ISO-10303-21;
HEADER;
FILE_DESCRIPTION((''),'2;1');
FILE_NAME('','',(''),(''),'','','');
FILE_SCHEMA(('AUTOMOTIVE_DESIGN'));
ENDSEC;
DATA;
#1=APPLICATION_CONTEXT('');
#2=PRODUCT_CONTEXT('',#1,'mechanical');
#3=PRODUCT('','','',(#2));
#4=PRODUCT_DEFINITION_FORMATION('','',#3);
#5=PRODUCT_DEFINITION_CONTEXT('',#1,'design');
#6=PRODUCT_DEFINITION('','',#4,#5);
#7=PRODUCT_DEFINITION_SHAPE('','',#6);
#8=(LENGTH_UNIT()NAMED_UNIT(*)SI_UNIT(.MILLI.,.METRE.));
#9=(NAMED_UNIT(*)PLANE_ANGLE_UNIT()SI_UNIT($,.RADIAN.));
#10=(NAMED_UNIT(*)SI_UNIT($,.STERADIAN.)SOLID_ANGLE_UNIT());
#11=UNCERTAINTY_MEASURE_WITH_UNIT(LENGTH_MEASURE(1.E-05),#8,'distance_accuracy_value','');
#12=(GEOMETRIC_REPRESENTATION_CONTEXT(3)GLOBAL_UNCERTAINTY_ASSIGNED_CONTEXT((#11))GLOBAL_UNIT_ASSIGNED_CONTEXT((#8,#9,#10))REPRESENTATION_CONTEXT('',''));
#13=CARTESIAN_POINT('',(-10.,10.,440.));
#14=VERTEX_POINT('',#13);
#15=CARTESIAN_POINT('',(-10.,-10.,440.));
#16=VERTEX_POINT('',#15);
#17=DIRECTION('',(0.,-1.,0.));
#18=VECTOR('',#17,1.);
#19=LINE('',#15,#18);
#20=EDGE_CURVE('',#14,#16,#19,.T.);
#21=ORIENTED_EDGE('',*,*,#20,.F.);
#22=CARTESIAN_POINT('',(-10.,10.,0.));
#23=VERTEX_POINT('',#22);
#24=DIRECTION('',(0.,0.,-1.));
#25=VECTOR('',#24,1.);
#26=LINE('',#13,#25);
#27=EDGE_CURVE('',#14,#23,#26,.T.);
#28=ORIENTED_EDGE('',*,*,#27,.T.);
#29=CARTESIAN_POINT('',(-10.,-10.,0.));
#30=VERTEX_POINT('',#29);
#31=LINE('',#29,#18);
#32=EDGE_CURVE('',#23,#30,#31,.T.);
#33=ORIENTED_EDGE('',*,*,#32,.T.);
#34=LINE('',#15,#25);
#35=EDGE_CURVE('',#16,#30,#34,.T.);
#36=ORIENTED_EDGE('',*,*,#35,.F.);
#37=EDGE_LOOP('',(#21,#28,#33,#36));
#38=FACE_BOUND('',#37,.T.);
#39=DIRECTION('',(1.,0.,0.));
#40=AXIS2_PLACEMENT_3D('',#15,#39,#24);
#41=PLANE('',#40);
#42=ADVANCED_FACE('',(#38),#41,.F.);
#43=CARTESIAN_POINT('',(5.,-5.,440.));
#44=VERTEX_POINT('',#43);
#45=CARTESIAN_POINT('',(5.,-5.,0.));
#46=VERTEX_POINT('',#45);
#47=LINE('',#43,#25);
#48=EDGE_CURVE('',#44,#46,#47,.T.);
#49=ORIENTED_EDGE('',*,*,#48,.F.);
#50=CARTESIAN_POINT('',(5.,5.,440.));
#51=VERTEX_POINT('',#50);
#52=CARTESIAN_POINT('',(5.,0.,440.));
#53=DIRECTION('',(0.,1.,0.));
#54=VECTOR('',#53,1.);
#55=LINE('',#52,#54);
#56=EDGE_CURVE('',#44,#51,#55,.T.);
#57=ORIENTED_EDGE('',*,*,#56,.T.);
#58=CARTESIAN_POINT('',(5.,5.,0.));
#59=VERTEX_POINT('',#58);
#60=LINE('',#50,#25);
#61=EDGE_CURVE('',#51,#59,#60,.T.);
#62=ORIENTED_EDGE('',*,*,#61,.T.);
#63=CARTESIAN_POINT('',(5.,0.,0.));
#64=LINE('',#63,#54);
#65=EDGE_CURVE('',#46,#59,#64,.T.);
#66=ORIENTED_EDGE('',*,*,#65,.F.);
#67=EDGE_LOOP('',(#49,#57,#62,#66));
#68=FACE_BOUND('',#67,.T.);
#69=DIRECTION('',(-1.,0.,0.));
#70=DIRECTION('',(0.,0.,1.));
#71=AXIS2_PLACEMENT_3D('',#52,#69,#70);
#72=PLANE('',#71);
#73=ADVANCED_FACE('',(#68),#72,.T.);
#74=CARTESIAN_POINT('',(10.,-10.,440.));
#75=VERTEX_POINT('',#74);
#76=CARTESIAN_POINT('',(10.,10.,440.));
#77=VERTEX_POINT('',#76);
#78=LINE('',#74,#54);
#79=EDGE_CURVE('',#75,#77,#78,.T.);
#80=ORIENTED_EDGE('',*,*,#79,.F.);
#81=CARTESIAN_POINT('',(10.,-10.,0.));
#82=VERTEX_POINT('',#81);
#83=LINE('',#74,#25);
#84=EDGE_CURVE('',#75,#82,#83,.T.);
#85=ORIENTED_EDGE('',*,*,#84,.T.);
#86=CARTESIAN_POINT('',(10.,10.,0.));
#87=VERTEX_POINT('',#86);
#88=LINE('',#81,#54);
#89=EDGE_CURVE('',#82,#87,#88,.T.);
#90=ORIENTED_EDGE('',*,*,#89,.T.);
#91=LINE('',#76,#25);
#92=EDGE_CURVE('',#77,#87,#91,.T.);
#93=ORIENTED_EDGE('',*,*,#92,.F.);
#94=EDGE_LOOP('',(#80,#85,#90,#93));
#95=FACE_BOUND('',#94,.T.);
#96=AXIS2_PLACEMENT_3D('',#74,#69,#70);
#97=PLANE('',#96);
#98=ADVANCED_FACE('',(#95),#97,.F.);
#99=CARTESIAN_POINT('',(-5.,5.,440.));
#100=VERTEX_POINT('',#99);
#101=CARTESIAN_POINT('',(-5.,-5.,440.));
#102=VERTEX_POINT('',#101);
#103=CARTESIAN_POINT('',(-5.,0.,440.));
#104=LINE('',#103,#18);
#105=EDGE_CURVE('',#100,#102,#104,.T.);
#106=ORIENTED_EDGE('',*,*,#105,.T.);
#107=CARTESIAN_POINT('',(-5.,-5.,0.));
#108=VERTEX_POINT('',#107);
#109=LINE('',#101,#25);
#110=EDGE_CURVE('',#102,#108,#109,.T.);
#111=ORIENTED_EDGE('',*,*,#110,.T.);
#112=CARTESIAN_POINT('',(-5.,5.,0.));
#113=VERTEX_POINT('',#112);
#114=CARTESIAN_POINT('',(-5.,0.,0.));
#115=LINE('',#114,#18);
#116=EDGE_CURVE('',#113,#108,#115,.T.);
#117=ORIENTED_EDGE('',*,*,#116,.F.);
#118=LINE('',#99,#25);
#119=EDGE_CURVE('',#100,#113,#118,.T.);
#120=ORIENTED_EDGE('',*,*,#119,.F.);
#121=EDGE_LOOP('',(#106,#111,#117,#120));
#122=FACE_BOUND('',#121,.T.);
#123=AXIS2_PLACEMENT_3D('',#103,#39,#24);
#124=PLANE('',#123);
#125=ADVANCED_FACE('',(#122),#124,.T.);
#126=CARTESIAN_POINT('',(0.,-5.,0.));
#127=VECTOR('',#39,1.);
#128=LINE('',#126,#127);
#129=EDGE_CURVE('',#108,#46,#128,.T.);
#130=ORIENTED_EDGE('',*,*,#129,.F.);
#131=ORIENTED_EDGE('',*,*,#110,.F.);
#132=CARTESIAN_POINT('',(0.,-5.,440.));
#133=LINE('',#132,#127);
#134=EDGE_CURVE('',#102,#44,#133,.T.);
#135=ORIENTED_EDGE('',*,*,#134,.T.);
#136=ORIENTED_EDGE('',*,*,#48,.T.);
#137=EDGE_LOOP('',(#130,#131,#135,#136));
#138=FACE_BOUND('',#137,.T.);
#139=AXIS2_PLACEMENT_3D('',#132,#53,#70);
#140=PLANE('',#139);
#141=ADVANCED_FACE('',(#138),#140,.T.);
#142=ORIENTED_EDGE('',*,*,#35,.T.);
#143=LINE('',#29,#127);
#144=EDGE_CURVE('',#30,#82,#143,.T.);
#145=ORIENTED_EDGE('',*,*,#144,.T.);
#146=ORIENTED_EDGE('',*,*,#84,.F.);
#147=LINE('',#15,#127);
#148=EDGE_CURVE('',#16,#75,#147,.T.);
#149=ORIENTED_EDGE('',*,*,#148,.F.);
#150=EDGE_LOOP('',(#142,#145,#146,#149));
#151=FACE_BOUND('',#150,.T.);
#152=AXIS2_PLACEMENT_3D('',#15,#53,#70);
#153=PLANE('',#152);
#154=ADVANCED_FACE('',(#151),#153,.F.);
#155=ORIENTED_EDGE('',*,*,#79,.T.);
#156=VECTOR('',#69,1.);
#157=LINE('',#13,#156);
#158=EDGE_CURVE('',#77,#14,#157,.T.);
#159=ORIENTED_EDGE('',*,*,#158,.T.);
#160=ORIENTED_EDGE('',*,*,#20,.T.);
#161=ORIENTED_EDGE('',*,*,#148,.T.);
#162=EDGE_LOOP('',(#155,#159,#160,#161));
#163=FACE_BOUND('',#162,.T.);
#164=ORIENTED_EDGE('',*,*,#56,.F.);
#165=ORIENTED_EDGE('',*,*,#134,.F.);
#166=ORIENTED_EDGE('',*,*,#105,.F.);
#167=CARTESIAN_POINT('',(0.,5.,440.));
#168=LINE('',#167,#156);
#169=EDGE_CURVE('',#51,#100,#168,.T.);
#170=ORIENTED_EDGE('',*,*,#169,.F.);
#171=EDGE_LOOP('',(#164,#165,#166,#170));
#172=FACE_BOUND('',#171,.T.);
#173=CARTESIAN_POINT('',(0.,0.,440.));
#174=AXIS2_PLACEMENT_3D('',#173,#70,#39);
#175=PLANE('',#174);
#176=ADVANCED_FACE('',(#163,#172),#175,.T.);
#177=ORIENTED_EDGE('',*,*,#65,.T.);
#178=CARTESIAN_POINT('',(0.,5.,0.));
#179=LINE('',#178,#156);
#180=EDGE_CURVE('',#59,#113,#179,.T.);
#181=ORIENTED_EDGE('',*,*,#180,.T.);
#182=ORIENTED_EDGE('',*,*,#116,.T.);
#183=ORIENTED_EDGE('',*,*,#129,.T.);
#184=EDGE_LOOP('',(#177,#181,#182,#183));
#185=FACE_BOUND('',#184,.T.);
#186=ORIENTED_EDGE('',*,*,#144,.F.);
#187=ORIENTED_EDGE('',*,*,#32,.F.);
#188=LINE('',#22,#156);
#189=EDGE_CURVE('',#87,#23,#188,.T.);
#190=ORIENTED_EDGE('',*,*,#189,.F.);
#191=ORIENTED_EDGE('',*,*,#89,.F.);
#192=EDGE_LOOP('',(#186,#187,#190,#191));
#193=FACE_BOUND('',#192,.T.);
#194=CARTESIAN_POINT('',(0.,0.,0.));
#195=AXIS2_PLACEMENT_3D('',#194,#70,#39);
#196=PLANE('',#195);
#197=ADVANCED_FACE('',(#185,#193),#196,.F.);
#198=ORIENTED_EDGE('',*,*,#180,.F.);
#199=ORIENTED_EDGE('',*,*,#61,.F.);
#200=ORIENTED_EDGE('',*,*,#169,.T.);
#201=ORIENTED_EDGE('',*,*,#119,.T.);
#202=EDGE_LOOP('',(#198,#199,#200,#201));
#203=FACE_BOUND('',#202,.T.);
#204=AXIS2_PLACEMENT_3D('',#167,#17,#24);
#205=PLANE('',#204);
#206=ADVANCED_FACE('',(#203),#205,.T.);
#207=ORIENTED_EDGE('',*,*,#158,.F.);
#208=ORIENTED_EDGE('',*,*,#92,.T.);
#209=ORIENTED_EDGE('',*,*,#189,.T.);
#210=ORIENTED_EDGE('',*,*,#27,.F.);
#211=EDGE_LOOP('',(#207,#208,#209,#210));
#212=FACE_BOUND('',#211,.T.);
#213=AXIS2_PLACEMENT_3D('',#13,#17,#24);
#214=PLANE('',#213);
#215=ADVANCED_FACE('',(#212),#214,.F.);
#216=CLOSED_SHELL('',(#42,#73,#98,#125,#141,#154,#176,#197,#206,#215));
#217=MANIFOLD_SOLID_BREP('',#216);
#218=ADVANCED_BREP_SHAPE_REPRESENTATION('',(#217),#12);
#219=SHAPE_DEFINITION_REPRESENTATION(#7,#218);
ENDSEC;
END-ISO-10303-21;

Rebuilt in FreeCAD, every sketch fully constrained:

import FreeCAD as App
import Part
import Sketcher

V = App.Vector
Q = App.Units.Quantity

doc = App.newDocument("Part")
body = doc.addObject("PartDesign::Body", "Body")

# Sketch on XY plane
sketch1 = doc.addObject("Sketcher::SketchObject", "Sketch")
body.addObject(sketch1)
sketch1.AttachmentSupport = (doc.XY_Plane, [""])
sketch1.MapMode = "FlatFace"
sketch1.addGeometry([
    Part.LineSegment(V(-10, 10, 0), V(-10, -10, 0)),  # 0
    Part.LineSegment(V(-10, -10, 0), V(10, -10, 0)),  # 1
    Part.LineSegment(V(10, -10, 0), V(10, 10, 0)),  # 2
    Part.LineSegment(V(10, 10, 0), V(-10, 10, 0)),  # 3
    Part.LineSegment(V(5, -5, 0), V(-5, -5, 0)),  # 4
    Part.LineSegment(V(-5, -5, 0), V(-5, 5, 0)),  # 5
    Part.LineSegment(V(-5, 5, 0), V(5, 5, 0)),  # 6
    Part.LineSegment(V(5, 5, 0), V(5, -5, 0)),  # 7
], False)
sketch1.addConstraint([
    Sketcher.Constraint("Coincident", 0, 2, 1, 1),
    Sketcher.Constraint("Coincident", 1, 2, 2, 1),
    Sketcher.Constraint("Coincident", 2, 2, 3, 1),
    Sketcher.Constraint("Coincident", 3, 2, 0, 1),
    Sketcher.Constraint("Coincident", 4, 2, 5, 1),
    Sketcher.Constraint("Coincident", 5, 2, 6, 1),
    Sketcher.Constraint("Coincident", 6, 2, 7, 1),
    Sketcher.Constraint("Coincident", 7, 2, 4, 1),
    Sketcher.Constraint("Vertical", 0),
    Sketcher.Constraint("Horizontal", 1),
    Sketcher.Constraint("Vertical", 2),
    Sketcher.Constraint("Horizontal", 3),
    Sketcher.Constraint("Horizontal", 4),
    Sketcher.Constraint("Vertical", 5),
    Sketcher.Constraint("Horizontal", 6),
    Sketcher.Constraint("Vertical", 7),
    Sketcher.Constraint("Symmetric", 0, 2, 2, 2, -1, 1),
    Sketcher.Constraint("Symmetric", 4, 2, 6, 2, -1, 1),
    Sketcher.Constraint("Equal", 3, 0),
    Sketcher.Constraint("Equal", 6, 5),
    Sketcher.Constraint("DistanceX", 1, 1, 1, 2, Q("20 mm")),
    Sketcher.Constraint("DistanceX", 4, 2, 4, 1, Q("10 mm")),
])
pad1 = doc.addObject("PartDesign::Pad", "Pad")
body.addObject(pad1)
pad1.Profile = sketch1
pad1.Length = 440

doc.recompute()
